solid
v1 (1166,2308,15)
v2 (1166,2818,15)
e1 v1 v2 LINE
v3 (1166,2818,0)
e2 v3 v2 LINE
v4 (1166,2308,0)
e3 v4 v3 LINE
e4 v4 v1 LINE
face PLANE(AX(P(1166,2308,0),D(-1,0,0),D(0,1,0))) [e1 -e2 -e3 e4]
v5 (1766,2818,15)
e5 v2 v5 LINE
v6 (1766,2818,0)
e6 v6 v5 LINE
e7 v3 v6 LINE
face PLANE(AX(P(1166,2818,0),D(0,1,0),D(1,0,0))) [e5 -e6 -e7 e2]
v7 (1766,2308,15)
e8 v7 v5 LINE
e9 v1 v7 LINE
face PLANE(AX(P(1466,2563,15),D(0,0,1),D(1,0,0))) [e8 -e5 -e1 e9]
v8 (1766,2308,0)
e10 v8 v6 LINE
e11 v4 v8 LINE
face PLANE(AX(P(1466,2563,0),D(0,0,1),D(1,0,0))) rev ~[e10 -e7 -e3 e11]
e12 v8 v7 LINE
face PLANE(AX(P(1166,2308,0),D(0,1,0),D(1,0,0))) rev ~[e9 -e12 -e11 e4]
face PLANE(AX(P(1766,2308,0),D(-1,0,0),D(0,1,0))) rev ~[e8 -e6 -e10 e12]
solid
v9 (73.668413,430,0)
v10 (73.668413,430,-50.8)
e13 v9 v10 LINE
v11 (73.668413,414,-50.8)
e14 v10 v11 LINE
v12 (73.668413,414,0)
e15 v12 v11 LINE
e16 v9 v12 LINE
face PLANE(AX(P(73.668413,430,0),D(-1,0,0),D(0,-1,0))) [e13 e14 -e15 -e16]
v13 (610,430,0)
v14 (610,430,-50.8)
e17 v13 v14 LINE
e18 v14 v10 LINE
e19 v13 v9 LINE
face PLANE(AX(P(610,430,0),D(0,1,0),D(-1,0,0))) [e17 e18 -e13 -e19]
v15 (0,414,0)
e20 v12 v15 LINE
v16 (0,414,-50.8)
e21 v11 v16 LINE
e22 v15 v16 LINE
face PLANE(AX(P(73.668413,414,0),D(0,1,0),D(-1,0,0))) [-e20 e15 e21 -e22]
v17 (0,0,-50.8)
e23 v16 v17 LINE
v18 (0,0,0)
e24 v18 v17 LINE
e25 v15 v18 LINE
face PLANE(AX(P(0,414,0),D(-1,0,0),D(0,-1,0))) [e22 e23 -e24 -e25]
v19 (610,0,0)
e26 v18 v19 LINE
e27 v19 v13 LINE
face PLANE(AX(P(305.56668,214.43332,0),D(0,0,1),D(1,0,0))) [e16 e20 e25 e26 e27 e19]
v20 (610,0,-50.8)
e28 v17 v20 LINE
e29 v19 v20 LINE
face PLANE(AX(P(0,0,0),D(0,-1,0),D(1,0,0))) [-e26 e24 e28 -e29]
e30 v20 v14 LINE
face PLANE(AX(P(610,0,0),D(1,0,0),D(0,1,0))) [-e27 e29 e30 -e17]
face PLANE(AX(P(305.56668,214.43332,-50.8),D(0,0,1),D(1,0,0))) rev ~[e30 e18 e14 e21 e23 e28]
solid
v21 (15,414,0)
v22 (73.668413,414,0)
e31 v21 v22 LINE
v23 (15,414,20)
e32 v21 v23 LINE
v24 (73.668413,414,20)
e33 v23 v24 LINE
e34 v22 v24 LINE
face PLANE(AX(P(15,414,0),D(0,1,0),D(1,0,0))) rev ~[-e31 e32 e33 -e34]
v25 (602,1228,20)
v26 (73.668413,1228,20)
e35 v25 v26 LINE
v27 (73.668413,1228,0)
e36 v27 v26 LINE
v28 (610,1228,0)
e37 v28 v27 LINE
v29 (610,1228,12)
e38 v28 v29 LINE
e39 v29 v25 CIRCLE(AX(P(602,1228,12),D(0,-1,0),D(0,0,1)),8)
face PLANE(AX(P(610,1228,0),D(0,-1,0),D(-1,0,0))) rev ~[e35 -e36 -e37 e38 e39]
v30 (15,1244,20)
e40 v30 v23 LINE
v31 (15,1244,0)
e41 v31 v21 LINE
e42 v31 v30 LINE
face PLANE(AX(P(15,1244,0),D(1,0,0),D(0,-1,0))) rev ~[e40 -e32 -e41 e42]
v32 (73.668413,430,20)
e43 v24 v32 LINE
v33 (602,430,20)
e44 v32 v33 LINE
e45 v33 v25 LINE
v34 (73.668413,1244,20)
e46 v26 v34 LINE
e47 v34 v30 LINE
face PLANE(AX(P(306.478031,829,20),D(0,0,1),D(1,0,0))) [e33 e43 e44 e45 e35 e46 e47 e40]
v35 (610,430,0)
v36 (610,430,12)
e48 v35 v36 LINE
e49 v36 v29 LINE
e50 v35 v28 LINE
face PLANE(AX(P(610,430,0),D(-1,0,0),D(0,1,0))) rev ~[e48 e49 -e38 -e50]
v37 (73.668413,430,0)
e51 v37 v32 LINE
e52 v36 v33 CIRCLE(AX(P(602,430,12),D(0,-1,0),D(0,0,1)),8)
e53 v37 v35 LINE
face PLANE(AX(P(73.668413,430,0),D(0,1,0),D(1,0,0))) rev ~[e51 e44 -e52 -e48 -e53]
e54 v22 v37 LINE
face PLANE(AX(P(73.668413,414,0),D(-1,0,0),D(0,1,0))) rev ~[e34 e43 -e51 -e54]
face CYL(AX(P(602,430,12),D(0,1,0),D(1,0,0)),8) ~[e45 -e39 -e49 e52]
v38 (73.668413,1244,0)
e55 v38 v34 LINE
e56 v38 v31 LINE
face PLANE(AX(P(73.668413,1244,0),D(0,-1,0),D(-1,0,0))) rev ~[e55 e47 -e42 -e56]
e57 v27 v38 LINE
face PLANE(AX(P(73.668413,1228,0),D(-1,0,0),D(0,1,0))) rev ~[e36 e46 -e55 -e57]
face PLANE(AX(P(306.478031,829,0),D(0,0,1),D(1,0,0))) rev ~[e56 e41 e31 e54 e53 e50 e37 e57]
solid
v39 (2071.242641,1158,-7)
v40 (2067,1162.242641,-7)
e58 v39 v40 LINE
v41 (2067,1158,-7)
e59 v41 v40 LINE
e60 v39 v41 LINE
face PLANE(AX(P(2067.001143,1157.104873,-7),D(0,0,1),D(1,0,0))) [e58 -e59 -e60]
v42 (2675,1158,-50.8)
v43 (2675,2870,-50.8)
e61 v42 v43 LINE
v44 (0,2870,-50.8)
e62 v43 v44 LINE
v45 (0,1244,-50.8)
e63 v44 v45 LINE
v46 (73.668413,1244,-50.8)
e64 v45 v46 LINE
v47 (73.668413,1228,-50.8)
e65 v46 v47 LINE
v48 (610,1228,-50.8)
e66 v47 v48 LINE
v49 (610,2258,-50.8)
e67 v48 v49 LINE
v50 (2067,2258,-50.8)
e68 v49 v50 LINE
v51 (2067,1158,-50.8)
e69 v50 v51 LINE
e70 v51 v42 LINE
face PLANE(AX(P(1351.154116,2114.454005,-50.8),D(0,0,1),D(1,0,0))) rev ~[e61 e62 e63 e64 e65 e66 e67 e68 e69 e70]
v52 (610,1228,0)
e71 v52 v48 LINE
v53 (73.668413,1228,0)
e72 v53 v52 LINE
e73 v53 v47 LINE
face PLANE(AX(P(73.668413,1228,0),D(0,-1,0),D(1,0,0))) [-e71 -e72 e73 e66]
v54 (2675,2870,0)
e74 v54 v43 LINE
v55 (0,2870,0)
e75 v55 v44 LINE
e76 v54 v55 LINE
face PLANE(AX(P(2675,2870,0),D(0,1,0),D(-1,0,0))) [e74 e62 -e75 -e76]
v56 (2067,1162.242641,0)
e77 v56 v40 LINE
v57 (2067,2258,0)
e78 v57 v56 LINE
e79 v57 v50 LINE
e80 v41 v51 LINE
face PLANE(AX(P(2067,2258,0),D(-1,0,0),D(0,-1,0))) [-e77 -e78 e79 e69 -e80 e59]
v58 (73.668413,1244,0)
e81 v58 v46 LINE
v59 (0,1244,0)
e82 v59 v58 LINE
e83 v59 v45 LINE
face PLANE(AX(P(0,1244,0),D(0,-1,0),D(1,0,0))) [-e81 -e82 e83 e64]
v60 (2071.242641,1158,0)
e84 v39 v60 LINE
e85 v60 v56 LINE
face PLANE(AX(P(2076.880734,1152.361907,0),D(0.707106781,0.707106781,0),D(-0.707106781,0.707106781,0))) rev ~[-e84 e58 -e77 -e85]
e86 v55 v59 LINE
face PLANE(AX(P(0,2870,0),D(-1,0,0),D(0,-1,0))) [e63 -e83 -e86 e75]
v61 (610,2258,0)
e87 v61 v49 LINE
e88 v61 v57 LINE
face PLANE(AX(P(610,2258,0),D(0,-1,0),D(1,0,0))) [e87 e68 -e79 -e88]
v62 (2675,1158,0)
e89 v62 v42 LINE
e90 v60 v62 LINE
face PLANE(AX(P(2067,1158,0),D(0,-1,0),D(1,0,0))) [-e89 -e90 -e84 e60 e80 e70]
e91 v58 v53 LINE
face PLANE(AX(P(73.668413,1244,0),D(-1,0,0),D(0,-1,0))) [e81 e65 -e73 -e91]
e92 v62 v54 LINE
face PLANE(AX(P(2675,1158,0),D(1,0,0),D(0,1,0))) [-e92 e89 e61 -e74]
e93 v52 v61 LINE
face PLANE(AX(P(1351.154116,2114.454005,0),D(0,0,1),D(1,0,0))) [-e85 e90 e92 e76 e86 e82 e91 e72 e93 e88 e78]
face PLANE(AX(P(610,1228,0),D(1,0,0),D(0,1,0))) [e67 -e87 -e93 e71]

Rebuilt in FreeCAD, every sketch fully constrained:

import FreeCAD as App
import Part
import Sketcher
Q = App.Units.Quantity


def edges_at(feature, points):
    """Names of the edges that pass closest to the given points."""
    edges = feature.Shape.Edges
    near = lambda p: min(range(len(edges)), key=lambda i: edges[i].distToShape(Part.Vertex(*p))[0])
    return sorted({f"Edge{near(p) + 1}" for p in points})

doc = App.newDocument("Part")
body = doc.addObject("PartDesign::Body", "Body")
body.AllowCompound = True

# Sketch on XY plane
sketch1 = body.newObject("Sketcher::SketchObject", "Sketch")
sketch1.AttachmentSupport = (doc.getObject("XY_Plane"), [""])
sketch1.MapMode = "FlatFace"
sketch1.addGeometry([
    Part.LineSegment(App.Vector(610, 1228, 0), App.Vector(610, 2258, 0)),  # 0
    Part.LineSegment(App.Vector(610, 2258, 0), App.Vector(2067, 2258, 0)),  # 1
    Part.LineSegment(App.Vector(2067, 2258, 0), App.Vector(2067, 1158, 0)),  # 2
    Part.LineSegment(App.Vector(2067, 1158, 0), App.Vector(2675, 1158, 0)),  # 3
    Part.LineSegment(App.Vector(2675, 1158, 0), App.Vector(2675, 2870, 0)),  # 4
    Part.LineSegment(App.Vector(2675, 2870, 0), App.Vector(0, 2870, 0)),  # 5
    Part.LineSegment(App.Vector(0, 2870, 0), App.Vector(0, 1244, 0)),  # 6
    Part.LineSegment(App.Vector(0, 1244, 0), App.Vector(73.668413, 1244, 0)),  # 7
    Part.LineSegment(App.Vector(73.668413, 1244, 0), App.Vector(73.668413, 1228, 0)),  # 8
    Part.LineSegment(App.Vector(73.668413, 1228, 0), App.Vector(610, 1228, 0)),  # 9
    Part.LineSegment(App.Vector(0, 414, 0), App.Vector(0, 0, 0)),  # 10
    Part.LineSegment(App.Vector(0, 0, 0), App.Vector(610, 0, 0)),  # 11
    Part.LineSegment(App.Vector(610, 0, 0), App.Vector(610, 430, 0)),  # 12
    Part.LineSegment(App.Vector(610, 430, 0), App.Vector(73.668413, 430, 0)),  # 13
    Part.LineSegment(App.Vector(73.668413, 430, 0), App.Vector(73.668413, 414, 0)),  # 14
    Part.LineSegment(App.Vector(73.668413, 414, 0), App.Vector(0, 414, 0)),  # 15
], False)
sketch1.addConstraint([
    Sketcher.Constraint("Coincident", 0, 2, 1, 1),
    Sketcher.Constraint("Coincident", 1, 2, 2, 1),
    Sketcher.Constraint("Coincident", 2, 2, 3, 1),
    Sketcher.Constraint("Coincident", 3, 2, 4, 1),
    Sketcher.Constraint("Coincident", 4, 2, 5, 1),
    Sketcher.Constraint("Coincident", 5, 2, 6, 1),
    Sketcher.Constraint("Coincident", 6, 2, 7, 1),
    Sketcher.Constraint("Coincident", 7, 2, 8, 1),
    Sketcher.Constraint("Coincident", 8, 2, 9, 1),
    Sketcher.Constraint("Coincident", 9, 2, 0, 1),
    Sketcher.Constraint("Coincident", 10, 2, 11, 1),
    Sketcher.Constraint("Coincident", 11, 2, 12, 1),
    Sketcher.Constraint("Coincident", 12, 2, 13, 1),
    Sketcher.Constraint("Coincident", 13, 2, 14, 1),
    Sketcher.Constraint("Coincident", 14, 2, 15, 1),
    Sketcher.Constraint("Coincident", 15, 2, 10, 1),
    Sketcher.Constraint("Vertical", 0),
    Sketcher.Constraint("Horizontal", 1),
    Sketcher.Constraint("Vertical", 2),
    Sketcher.Constraint("Horizontal", 3),
    Sketcher.Constraint("Vertical", 4),
    Sketcher.Constraint("Horizontal", 5),
    Sketcher.Constraint("Vertical", 6),
    Sketcher.Constraint("Horizontal", 7),
    Sketcher.Constraint("Vertical", 8),
    Sketcher.Constraint("Horizontal", 9),
    Sketcher.Constraint("Vertical", 10),
    Sketcher.Constraint("Horizontal", 11),
    Sketcher.Constraint("Vertical", 12),
    Sketcher.Constraint("Horizontal", 13),
    Sketcher.Constraint("Vertical", 14),
    Sketcher.Constraint("Horizontal", 15),
    Sketcher.Constraint("Coincident", 10, 2, -1, 1),
    Sketcher.Constraint("PointOnObject", 5, 2, -2),
    Sketcher.Constraint("Vertical", 9, 2, 11, 2),
    Sketcher.Constraint("Vertical", 8, 2, 13, 2),
    Sketcher.Constraint("Equal", 8, 14),
    Sketcher.Constraint("DistanceX", 1, 1, 1, 2, 1457.0),
    Sketcher.Constraint("DistanceX", 3, 1, 3, 2, 608.0),
    Sketcher.Constraint("DistanceX", 5, 2, 5, 1, 2675.0),
    Sketcher.Constraint("DistanceY", 0, 1, 0, 2, 1030.0),
    Sketcher.Constraint("DistanceY", 2, 2, 2, 1, 1100.0),
    Sketcher.Constraint("DistanceY", 4, 1, 4, 2, 1712.0),
    Sketcher.Constraint("DistanceY", 6, 2, 6, 1, 1626.0),
    Sketcher.Constraint("DistanceY", 10, 2, 10, 1, 414.0),
    Sketcher.Constraint("DistanceY", -1, 1, 0, 2, 2258.0),
    Sketcher.Constraint("DistanceX", 7, 1, 7, 2, 73.668413),
])
pad1 = body.newObject("PartDesign::Pad", "Pad")
pad1.Profile = sketch1
pad1.Length = 50.8
pad1.Reversed = True

# Sketch on XY plane
sketch2 = body.newObject("Sketcher::SketchObject", "Sketch001")
sketch2.AttachmentSupport = (doc.getObject("XY_Plane"), [""])
sketch2.MapMode = "FlatFace"
sketch2.addGeometry([
    Part.LineSegment(App.Vector(2076.880734, 1152.361907, 0), App.Vector(2062.746637, 1166.496004, 0)),
    Part.LineSegment(App.Vector(2062.746637, 1166.496004, 0), App.Vector(2060.033986, 1152.361907, 0)),
    Part.LineSegment(App.Vector(2060.033986, 1152.361907, 0), App.Vector(2076.880734, 1152.361907, 0)),
], False)
sketch2.addConstraint([
    Sketcher.Constraint("Coincident", 0, 2, 1, 1),
    Sketcher.Constraint("Coincident", 1, 2, 2, 1),
    Sketcher.Constraint("Coincident", 2, 2, 0, 1),
    Sketcher.Constraint("Horizontal", 2),
    Sketcher.Constraint("Angle", 0, Q("135 deg")),
    Sketcher.Constraint("Distance", 0, 19.988632),
    Sketcher.Constraint("DistanceX", 2, 1, 2, 2, 16.846748),
    Sketcher.Constraint("DistanceX", -1, 1, 0, 2, 2062.746637),
    Sketcher.Constraint("DistanceY", -1, 1, 0, 2, 1166.496004),
])
pocket1 = body.newObject("PartDesign::Pocket", "Pocket")
pocket1.Profile = sketch2
pocket1.Length = 7
body2 = doc.addObject("PartDesign::Body", "Body001")

# Sketch on XY plane
sketch3 = body2.newObject("Sketcher::SketchObject", "Sketch002")
sketch3.AttachmentSupport = (doc.getObject("XY_Plane001"), [""])
sketch3.MapMode = "FlatFace"
sketch3.addGeometry([
    Part.LineSegment(App.Vector(1166, 2818, 0), App.Vector(1166, 2308, 0)),
    Part.LineSegment(App.Vector(1166, 2308, 0), App.Vector(1766, 2308, 0)),
    Part.LineSegment(App.Vector(1766, 2308, 0), App.Vector(1766, 2818, 0)),
    Part.LineSegment(App.Vector(1766, 2818, 0), App.Vector(1166, 2818, 0)),
], False)
sketch3.addConstraint([
    Sketcher.Constraint("Coincident", 0, 2, 1, 1),
    Sketcher.Constraint("Coincident", 1, 2, 2, 1),
    Sketcher.Constraint("Coincident", 2, 2, 3, 1),
    Sketcher.Constraint("Coincident", 3, 2, 0, 1),
    Sketcher.Constraint("Vertical", 0),
    Sketcher.Constraint("Horizontal", 1),
    Sketcher.Constraint("Vertical", 2),
    Sketcher.Constraint("Horizontal", 3),
    Sketcher.Constraint("DistanceX", 1, 1, 1, 2, 600.0),
    Sketcher.Constraint("DistanceY", 0, 2, 0, 1, 510.0),
    Sketcher.Constraint("DistanceX", -1, 1, 0, 2, 1166.0),
    Sketcher.Constraint("DistanceY", -1, 1, 0, 2, 2308.0),
])
pad2 = body2.newObject("PartDesign::Pad", "Pad001")
pad2.Profile = sketch3
pad2.Length = 15
body3 = doc.addObject("PartDesign::Body", "Body002")

# Sketch on XY plane
sketch4 = body3.newObject("Sketcher::SketchObject", "Sketch003")
sketch4.AttachmentSupport = (doc.getObject("XY_Plane002"), [""])
sketch4.MapMode = "FlatFace"
sketch4.addGeometry([
    Part.LineSegment(App.Vector(610, 430, 0), App.Vector(610, 1228, 0)),  # 0
    Part.LineSegment(App.Vector(610, 1228, 0), App.Vector(73.668413, 1228, 0)),  # 1
    Part.LineSegment(App.Vector(73.668413, 1228, 0), App.Vector(73.668413, 1244, 0)),  # 2
    Part.LineSegment(App.Vector(73.668413, 1244, 0), App.Vector(15, 1244, 0)),  # 3
    Part.LineSegment(App.Vector(15, 1244, 0), App.Vector(15, 414, 0)),  # 4
    Part.LineSegment(App.Vector(15, 414, 0), App.Vector(73.668413, 414, 0)),  # 5
    Part.LineSegment(App.Vector(73.668413, 414, 0), App.Vector(73.668413, 430, 0)),  # 6
    Part.LineSegment(App.Vector(73.668413, 430, 0), App.Vector(610, 430, 0)),  # 7
], False)
sketch4.addConstraint([
    Sketcher.Constraint("Coincident", 0, 2, 1, 1),
    Sketcher.Constraint("Coincident", 1, 2, 2, 1),
    Sketcher.Constraint("Coincident", 2, 2, 3, 1),
    Sketcher.Constraint("Coincident", 3, 2, 4, 1),
    Sketcher.Constraint("Coincident", 4, 2, 5, 1),
    Sketcher.Constraint("Coincident", 5, 2, 6, 1),
    Sketcher.Constraint("Coincident", 6, 2, 7, 1),
    Sketcher.Constraint("Coincident", 7, 2, 0, 1),
    Sketcher.Constraint("Vertical", 0),
    Sketcher.Constraint("Horizontal", 1),
    Sketcher.Constraint("Vertical", 2),
    Sketcher.Constraint("Horizontal", 3),
    Sketcher.Constraint("Vertical", 4),
    Sketcher.Constraint("Horizontal", 5),
    Sketcher.Constraint("Vertical", 6),
    Sketcher.Constraint("Horizontal", 7),
    Sketcher.Constraint("Vertical", 2, 2, 5, 2),
    Sketcher.Constraint("Equal", 2, 6),
    Sketcher.Constraint("DistanceY", 0, 1, 0, 2, 798.0),
    Sketcher.Constraint("DistanceY", 2, 1, 2, 2, 16.0),
    Sketcher.Constraint("DistanceX", -1, 1, 0, 2, 610.0),
    Sketcher.Constraint("DistanceY", -1, 1, 0, 2, 1228.0),
    Sketcher.Constraint("DistanceX", -1, 1, 3, 2, 15.0),
    Sketcher.Constraint("DistanceX", 1, 2, 1, 1, 536.331587),
])
pad3 = body3.newObject("PartDesign::Pad", "Pad002")
pad3.Profile = sketch4
pad3.Length = 20
doc.recompute()

fillet = body3.newObject("PartDesign::Fillet", "Fillet")
fillet.Base = (pad3, edges_at(pad3, [(610, 829, 20)]))
fillet.Radius = 8

doc.recompute()
